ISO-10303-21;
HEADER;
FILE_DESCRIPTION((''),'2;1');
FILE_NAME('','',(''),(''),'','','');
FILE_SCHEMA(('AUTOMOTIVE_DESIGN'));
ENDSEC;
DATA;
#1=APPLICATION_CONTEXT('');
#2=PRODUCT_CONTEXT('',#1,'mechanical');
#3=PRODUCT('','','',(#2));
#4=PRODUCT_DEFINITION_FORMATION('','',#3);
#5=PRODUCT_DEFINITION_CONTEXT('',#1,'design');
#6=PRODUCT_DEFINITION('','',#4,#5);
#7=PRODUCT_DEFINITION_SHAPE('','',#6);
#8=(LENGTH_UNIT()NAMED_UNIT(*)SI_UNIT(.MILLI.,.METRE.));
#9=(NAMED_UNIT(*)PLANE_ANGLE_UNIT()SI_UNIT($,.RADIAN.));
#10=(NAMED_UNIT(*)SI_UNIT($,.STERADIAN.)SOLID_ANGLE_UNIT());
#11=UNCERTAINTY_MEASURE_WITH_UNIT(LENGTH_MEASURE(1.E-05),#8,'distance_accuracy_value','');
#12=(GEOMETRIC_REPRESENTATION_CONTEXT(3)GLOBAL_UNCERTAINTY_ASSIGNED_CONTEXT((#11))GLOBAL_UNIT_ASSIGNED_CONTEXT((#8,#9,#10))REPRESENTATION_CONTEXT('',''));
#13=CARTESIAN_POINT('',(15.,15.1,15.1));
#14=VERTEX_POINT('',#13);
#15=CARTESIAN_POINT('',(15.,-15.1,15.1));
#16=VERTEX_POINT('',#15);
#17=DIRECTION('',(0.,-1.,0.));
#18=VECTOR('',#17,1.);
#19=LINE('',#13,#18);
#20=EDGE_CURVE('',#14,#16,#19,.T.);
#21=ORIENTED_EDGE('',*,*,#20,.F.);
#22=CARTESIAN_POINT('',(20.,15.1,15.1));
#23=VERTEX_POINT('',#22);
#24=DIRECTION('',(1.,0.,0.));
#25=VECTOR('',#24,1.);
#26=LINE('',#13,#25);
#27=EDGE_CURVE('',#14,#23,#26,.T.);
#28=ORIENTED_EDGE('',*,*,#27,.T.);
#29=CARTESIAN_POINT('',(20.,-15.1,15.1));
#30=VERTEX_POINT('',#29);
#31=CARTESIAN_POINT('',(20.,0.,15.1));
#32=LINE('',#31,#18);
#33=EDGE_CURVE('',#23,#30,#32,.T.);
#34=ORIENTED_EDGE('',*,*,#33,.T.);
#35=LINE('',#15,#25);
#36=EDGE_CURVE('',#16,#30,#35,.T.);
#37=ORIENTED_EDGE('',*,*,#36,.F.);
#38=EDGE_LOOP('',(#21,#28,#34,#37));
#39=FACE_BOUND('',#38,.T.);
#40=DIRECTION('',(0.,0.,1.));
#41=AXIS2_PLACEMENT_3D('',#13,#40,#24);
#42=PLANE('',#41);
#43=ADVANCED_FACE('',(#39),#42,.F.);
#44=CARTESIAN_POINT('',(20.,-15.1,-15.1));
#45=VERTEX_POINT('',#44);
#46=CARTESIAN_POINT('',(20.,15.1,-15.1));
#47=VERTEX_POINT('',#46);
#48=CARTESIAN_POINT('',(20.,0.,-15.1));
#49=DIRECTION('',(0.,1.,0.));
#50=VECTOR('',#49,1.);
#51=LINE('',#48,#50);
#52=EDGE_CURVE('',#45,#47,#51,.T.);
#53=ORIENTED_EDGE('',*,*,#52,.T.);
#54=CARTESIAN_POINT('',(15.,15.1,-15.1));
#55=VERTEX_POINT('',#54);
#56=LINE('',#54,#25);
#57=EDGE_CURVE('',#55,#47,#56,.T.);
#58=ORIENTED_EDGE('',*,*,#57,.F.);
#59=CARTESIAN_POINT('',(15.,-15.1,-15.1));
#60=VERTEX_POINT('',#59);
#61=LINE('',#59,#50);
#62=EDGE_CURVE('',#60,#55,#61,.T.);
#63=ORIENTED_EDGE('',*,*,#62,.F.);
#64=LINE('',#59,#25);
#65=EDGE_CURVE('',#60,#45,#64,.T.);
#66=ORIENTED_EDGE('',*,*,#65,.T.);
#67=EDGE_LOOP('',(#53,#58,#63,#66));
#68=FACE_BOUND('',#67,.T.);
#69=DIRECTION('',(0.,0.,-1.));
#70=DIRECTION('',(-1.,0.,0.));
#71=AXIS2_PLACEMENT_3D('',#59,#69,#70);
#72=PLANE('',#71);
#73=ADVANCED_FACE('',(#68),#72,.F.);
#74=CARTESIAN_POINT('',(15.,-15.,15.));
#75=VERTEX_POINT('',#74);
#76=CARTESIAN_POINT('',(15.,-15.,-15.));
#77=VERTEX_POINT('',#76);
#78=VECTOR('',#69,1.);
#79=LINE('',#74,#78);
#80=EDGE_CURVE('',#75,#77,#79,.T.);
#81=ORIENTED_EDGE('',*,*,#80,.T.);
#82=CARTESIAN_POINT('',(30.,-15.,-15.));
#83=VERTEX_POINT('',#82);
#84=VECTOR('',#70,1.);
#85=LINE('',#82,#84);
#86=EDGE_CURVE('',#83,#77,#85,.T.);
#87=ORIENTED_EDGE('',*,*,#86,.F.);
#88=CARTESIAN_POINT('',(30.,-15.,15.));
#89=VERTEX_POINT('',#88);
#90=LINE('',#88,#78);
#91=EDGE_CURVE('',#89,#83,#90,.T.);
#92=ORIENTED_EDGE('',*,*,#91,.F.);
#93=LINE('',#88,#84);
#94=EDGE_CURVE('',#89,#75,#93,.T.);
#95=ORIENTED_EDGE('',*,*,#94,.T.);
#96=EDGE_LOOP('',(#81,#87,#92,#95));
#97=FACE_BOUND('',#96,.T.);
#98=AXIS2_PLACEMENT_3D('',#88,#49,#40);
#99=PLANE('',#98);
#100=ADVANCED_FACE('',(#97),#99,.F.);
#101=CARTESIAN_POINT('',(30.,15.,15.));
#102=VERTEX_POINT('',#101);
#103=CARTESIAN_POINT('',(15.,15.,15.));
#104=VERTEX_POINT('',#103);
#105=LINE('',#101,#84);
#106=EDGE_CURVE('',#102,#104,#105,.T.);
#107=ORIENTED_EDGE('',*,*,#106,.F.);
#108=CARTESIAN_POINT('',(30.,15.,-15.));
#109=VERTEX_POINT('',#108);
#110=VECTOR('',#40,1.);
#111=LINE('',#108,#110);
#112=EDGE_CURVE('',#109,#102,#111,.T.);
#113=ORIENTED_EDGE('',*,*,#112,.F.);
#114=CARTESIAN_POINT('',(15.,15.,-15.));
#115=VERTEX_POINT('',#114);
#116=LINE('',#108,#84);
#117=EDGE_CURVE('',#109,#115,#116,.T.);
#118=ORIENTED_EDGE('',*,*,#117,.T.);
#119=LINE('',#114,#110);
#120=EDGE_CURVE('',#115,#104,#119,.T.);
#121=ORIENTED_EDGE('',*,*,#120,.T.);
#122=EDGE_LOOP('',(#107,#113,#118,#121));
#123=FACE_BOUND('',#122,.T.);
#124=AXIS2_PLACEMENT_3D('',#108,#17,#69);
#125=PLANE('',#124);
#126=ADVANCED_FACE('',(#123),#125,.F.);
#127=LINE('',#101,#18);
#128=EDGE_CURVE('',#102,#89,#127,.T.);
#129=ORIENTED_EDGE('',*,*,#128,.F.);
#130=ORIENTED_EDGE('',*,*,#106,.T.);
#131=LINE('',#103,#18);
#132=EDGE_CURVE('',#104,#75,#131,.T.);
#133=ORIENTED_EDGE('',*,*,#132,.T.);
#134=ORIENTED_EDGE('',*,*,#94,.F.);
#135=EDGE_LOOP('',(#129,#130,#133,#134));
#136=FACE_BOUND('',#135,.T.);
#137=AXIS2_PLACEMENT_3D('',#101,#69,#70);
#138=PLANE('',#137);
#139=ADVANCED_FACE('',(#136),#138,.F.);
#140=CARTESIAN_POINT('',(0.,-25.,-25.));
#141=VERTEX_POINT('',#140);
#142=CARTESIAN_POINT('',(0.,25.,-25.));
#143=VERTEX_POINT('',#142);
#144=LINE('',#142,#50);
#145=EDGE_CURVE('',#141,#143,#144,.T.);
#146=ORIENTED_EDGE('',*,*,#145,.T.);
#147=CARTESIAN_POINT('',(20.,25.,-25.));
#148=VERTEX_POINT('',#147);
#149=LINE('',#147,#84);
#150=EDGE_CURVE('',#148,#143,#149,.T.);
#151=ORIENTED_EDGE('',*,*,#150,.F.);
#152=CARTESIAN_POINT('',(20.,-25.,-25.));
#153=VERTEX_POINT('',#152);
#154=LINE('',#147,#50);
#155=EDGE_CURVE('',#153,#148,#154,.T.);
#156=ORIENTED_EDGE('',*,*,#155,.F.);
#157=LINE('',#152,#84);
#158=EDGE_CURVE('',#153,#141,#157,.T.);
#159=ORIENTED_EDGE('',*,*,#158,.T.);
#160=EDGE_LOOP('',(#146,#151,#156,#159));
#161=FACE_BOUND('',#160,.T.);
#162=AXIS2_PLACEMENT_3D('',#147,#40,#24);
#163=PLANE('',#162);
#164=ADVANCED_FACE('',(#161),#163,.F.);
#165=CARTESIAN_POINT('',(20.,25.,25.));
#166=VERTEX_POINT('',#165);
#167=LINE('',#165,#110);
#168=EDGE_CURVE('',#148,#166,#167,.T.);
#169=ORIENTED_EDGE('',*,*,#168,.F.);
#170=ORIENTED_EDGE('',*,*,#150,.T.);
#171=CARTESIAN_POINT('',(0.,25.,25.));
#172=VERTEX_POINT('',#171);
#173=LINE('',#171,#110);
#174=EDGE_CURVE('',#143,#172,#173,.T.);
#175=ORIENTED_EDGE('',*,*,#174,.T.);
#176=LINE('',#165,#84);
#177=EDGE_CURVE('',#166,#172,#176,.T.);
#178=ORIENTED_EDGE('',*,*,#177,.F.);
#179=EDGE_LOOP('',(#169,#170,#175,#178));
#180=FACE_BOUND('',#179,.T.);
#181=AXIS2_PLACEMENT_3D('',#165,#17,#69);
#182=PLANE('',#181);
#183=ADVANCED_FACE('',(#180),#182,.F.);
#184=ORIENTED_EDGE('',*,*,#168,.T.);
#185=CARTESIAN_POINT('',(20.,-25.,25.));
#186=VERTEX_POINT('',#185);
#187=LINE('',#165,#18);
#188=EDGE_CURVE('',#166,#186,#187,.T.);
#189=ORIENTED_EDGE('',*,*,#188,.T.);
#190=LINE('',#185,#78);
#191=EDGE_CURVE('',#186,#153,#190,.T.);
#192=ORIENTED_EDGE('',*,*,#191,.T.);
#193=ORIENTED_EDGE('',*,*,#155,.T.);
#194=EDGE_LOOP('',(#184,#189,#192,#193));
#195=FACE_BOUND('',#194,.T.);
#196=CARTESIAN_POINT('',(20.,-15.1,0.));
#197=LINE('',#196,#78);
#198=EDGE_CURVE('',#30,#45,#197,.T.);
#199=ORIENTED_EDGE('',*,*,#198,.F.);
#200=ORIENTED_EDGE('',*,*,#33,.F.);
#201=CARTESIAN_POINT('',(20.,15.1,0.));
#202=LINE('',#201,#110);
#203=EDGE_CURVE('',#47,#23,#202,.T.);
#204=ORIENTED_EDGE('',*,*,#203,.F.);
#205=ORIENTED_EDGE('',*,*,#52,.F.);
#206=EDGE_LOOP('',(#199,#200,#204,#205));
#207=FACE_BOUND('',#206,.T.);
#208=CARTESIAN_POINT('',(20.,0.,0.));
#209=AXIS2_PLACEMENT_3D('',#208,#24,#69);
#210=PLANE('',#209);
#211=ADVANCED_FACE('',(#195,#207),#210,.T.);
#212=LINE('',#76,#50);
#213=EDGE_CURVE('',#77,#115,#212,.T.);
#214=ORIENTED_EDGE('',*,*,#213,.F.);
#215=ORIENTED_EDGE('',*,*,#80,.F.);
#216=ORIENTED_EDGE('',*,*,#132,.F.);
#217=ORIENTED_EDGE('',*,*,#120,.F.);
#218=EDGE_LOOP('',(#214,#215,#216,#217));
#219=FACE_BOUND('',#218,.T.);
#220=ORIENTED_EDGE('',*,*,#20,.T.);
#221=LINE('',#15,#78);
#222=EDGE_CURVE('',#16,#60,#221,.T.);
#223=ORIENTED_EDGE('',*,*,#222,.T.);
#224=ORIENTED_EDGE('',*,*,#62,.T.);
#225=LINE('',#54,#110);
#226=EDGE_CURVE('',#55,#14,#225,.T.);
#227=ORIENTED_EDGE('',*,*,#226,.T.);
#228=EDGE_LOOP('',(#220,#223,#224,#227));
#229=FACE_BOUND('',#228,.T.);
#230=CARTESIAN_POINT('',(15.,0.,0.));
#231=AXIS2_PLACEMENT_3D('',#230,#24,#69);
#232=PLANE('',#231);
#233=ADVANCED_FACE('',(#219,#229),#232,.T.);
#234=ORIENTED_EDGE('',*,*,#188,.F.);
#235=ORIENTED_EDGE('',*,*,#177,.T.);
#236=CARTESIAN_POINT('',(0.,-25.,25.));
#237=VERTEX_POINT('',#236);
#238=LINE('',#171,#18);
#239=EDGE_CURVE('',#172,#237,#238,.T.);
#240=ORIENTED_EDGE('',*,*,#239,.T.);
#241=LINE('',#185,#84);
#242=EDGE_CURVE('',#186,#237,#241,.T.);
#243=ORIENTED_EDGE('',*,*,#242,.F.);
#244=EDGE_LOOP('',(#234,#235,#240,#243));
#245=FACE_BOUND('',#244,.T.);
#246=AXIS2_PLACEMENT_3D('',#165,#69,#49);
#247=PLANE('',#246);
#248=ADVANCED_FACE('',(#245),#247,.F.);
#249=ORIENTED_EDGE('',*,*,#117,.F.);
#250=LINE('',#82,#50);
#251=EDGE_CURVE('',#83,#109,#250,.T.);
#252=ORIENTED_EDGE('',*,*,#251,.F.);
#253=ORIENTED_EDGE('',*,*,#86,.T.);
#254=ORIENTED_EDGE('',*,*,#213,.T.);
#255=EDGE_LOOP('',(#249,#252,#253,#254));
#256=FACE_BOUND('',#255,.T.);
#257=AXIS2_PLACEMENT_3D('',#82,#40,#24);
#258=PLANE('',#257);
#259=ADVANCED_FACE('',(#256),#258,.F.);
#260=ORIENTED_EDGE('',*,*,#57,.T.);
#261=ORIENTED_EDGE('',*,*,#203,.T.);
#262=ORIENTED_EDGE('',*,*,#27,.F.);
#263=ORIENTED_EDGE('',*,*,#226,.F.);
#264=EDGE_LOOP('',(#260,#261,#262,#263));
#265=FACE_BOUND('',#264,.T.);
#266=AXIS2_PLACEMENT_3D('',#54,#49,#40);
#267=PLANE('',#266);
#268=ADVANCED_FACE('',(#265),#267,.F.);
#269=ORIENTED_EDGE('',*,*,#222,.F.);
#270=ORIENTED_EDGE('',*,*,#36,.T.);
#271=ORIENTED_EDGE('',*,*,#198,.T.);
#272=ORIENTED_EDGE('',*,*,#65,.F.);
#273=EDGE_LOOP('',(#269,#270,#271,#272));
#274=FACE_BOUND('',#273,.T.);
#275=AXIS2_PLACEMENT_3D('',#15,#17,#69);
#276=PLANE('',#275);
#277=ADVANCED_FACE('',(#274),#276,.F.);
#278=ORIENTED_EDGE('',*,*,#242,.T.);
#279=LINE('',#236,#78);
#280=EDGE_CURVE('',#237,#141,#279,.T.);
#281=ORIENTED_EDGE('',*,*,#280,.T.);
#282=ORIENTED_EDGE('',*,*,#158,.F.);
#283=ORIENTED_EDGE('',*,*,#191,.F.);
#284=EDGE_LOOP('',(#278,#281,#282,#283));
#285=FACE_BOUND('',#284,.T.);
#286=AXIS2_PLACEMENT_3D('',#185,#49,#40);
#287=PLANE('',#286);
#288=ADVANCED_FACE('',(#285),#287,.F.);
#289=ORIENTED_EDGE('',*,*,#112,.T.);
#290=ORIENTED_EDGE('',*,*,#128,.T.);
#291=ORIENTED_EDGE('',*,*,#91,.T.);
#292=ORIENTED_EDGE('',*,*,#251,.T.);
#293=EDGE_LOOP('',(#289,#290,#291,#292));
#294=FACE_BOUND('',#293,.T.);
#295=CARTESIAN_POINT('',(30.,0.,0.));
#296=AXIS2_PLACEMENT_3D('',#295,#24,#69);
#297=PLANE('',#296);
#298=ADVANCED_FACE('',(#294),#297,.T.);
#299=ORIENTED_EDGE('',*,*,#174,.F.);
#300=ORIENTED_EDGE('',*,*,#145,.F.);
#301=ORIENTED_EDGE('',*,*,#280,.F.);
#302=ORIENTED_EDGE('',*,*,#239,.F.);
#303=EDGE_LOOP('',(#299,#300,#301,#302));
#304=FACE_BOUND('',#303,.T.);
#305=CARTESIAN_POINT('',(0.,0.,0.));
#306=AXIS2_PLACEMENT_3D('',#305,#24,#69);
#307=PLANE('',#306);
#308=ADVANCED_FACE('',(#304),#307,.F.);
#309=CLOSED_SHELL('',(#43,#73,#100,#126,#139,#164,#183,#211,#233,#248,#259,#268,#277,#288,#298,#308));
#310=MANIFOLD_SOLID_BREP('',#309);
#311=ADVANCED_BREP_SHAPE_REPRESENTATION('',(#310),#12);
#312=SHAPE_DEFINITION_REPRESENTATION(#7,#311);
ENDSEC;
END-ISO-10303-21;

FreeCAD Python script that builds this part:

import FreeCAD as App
import Part
import Sketcher

V = App.Vector


def add_polygon(sketch, points):
    """Adds a closed chain of lines whose ends are joined by coincident constraints."""
    first, n = sketch.GeometryCount, len(points)
    for a, b in zip(points, points[1:] + points[:1]):
        sketch.addGeometry(Part.LineSegment(App.Vector(*a, 0), App.Vector(*b, 0)), False)
    for i in range(n):
        sketch.addConstraint(Sketcher.Constraint("Coincident", first + i, 2, first + (i + 1) % n, 1))

doc = App.newDocument("Part")
body = doc.addObject("PartDesign::Body", "Body")

# Sketch on YZ plane
sketch1 = body.newObject("Sketcher::SketchObject", "Sketch")
sketch1.AttachmentSupport = (doc.getObject("YZ_Plane"), [""])
sketch1.MapMode = "FlatFace"
add_polygon(sketch1, [(25, 25), (-25, 25), (-25, -25), (25, -25)])  # lines 0-3
sketch1.addConstraint(Sketcher.Constraint("Horizontal", 0))
sketch1.addConstraint(Sketcher.Constraint("Vertical", 1))
sketch1.addConstraint(Sketcher.Constraint("Horizontal", 2))
sketch1.addConstraint(Sketcher.Constraint("Vertical", 3))
sketch1.addConstraint(Sketcher.Constraint("Symmetric", 0, 2, 2, 2, -1, 1))
sketch1.addConstraint(Sketcher.Constraint("Equal", 2, 1))
sketch1.addConstraint(Sketcher.Constraint("DistanceX", 0, 2, 0, 1, 50.0))
pad1 = body.newObject("PartDesign::Pad", "Pad")
pad1.Profile = sketch1
pad1.Length = 20

# Sketch on YZ plane
sketch2 = body.newObject("Sketcher::SketchObject", "Sketch001")
sketch2.AttachmentSupport = (doc.getObject("YZ_Plane"), [""])
sketch2.MapMode = "FlatFace"
sketch2.AttachmentOffset = App.Placement(V(0, 0, 20), App.Rotation())
add_polygon(sketch2, [(15, 15), (-15, 15), (-15, -15), (15, -15)])  # lines 0-3
sketch2.addConstraint(Sketcher.Constraint("Horizontal", 0))
sketch2.addConstraint(Sketcher.Constraint("Vertical", 1))
sketch2.addConstraint(Sketcher.Constraint("Horizontal", 2))
sketch2.addConstraint(Sketcher.Constraint("Vertical", 3))
sketch2.addConstraint(Sketcher.Constraint("Symmetric", 0, 2, 2, 2, -1, 1))
sketch2.addConstraint(Sketcher.Constraint("Equal", 2, 1))
sketch2.addConstraint(Sketcher.Constraint("DistanceX", 0, 2, 0, 1, 30.0))
pad2 = body.newObject("PartDesign::Pad", "Pad001")
pad2.Profile = sketch2
pad2.Length = 10

# Sketch on YZ plane
sketch3 = body.newObject("Sketcher::SketchObject", "Sketch002")
sketch3.AttachmentSupport = (doc.getObject("YZ_Plane"), [""])
sketch3.MapMode = "FlatFace"
sketch3.AttachmentOffset = App.Placement(V(0, 0, 30), App.Rotation())
add_polygon(sketch3, [(15, 15), (-15, 15), (-15, -15), (15, -15)])  # lines 0-3
add_polygon(sketch3, [(-15, -15), (-15, 15), (15, 15), (15, -15)])  # lines 4-7
sketch3.addConstraint(Sketcher.Constraint("Horizontal", 0))
sketch3.addConstraint(Sketcher.Constraint("Vertical", 1))
sketch3.addConstraint(Sketcher.Constraint("Horizontal", 2))
sketch3.addConstraint(Sketcher.Constraint("Vertical", 3))
sketch3.addConstraint(Sketcher.Constraint("Vertical", 4))
sketch3.addConstraint(Sketcher.Constraint("Horizontal", 5))
sketch3.addConstraint(Sketcher.Constraint("Vertical", 6))
sketch3.addConstraint(Sketcher.Constraint("Horizontal", 7))
sketch3.addConstraint(Sketcher.Constraint("Symmetric", 0, 2, 2, 2, -1, 1))
sketch3.addConstraint(Sketcher.Constraint("Symmetric", 4, 2, 6, 2, -1, 1))
sketch3.addConstraint(Sketcher.Constraint("Equal", 2, 1))
sketch3.addConstraint(Sketcher.Constraint("Equal", 7, 4))
sketch3.addConstraint(Sketcher.Constraint("DistanceX", 5, 1, 5, 2, 30.0))
sketch3.addConstraint(Sketcher.Constraint("DistanceX", 0, 2, 0, 1, 30.2))
pocket1 = body.newObject("PartDesign::Pocket", "Pocket")
pocket1.Profile = sketch3
pocket1.Length = 15

doc.recompute()
